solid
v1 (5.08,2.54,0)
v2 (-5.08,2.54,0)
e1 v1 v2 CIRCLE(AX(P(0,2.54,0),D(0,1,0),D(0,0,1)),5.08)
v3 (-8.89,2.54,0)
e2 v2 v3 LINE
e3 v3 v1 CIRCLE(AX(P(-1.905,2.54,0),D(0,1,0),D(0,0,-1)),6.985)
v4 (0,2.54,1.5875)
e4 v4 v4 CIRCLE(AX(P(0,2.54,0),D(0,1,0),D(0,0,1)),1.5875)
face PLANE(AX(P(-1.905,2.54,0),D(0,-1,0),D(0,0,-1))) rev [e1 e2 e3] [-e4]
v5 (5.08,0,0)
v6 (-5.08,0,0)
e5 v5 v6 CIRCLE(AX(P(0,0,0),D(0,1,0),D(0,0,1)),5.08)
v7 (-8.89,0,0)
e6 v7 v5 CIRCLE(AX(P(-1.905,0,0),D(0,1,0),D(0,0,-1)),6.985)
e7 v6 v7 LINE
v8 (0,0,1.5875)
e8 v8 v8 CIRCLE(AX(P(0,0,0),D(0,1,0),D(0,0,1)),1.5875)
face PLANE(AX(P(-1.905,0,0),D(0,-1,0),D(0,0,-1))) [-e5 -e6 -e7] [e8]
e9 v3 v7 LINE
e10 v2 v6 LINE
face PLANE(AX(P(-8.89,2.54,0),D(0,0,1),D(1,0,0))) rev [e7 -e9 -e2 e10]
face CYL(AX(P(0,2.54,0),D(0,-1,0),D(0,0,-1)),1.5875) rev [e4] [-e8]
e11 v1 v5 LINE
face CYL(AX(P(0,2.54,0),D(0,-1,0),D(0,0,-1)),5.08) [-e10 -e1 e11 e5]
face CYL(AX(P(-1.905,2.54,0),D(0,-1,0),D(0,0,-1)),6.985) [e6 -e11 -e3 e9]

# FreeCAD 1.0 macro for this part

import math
import FreeCAD as App
import Part
import Sketcher

V = App.Vector
Q = App.Units.Quantity

doc = App.newDocument("Part")
params = doc.addObject("Spreadsheet::Sheet", "Params")
for row, (alias, value) in enumerate([
    ("sketch1_radius", "0.2 in"),
    ("sketch1_diameter", "0.125 in"),
    ("sketch1_radius2", "0.275 in"),
    ("pad1_length", "0.1 in"),
], start=1):
    params.set(f"A{row}", alias)
    params.set(f"B{row}", "=" + value)
    params.setAlias(f"B{row}", alias)

body = doc.addObject("PartDesign::Body", "Body")

sketch1 = body.newObject("Sketcher::SketchObject", "Sketch")
sketch1.AttachmentSupport = (doc.getObject("XZ_Plane"), [""])
sketch1.MapMode = "FlatFace"
sketch1.addGeometry([
    Part.LineSegment(V(-5.1, 0, 0), V(-8.9, 0, 0)),
    Part.ArcOfCircle(Part.Circle(V(-1.9, 0, 0), V(0, 0, 1), 7), math.radians(0), math.radians(180)),
    Part.ArcOfCircle(Part.Circle(V(0, 0, 0), V(0, 0, 1), 5.1), math.radians(180), math.radians(360)),
    Part.Circle(V(0, 0, 0), V(0, 0, 1), 1.6),
], False)
sketch1.addConstraint([
    Sketcher.Constraint("Coincident", 0, 2, 1, 2),
    Sketcher.Constraint("Tangent", 1, 1, 2, 2),
    Sketcher.Constraint("Coincident", 2, 1, 0, 1),
    Sketcher.Constraint("Horizontal", 0),
    Sketcher.Constraint("Coincident", 2, 3, -1, 1),
    Sketcher.Constraint("Coincident", 3, 3, -1, 1),
    Sketcher.Constraint("PointOnObject", 1, 3, -1),
    Sketcher.Constraint("PointOnObject", 0, 2, -1),
    Sketcher.Constraint("Radius", 2, Q("0.2 in")),
    Sketcher.Constraint("Diameter", 3, Q("0.125 in")),
    Sketcher.Constraint("Radius", 1, Q("0.275 in")),
])
sketch1.setExpression("Constraints[8]", "Params.sketch1_radius")
sketch1.setExpression("Constraints[9]", "Params.sketch1_diameter")
sketch1.setExpression("Constraints[10]", "Params.sketch1_radius2")
pad1 = body.newObject("PartDesign::Pad", "Pad")
pad1.Profile = sketch1
pad1.setExpression("Length", "Params.pad1_length")
pad1.Reversed = True

doc.recompute()
